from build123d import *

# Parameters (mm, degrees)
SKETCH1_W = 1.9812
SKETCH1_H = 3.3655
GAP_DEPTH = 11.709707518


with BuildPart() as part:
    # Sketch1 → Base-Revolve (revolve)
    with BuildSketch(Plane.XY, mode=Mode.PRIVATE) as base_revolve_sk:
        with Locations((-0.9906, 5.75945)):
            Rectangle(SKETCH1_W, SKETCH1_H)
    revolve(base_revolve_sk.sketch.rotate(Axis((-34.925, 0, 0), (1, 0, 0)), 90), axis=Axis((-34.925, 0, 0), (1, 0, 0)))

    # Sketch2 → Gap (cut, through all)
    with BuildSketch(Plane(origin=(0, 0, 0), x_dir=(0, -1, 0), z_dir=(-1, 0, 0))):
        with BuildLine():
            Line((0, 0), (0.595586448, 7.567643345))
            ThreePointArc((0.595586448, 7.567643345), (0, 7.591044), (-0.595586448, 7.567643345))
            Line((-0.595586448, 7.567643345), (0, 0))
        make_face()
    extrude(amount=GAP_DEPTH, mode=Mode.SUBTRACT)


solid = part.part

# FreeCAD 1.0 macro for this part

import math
import FreeCAD as App
import Part
import Sketcher
Q = App.Units.Quantity


def add_polygon(sketch, points):
    """Adds a closed chain of lines whose ends are joined by coincident constraints."""
    first, n = sketch.GeometryCount, len(points)
    for a, b in zip(points, points[1:] + points[:1]):
        sketch.addGeometry(Part.LineSegment(App.Vector(*a, 0), App.Vector(*b, 0)), False)
    for i in range(n):
        sketch.addConstraint(Sketcher.Constraint("Coincident", first + i, 2, first + (i + 1) % n, 1))

doc = App.newDocument("Part")
body = doc.addObject("PartDesign::Body", "Body")

sketch1 = body.newObject("Sketcher::SketchObject", "Sketch")
sketch1.AttachmentSupport = (doc.getObject("XY_Plane"), [""])
sketch1.MapMode = "FlatFace"
add_polygon(sketch1, [(-2, 7.4), (-2, 4.1), (0, 4.1), (0, 7.4)])
sketch1.addConstraint(Sketcher.Constraint("Vertical", 0))
sketch1.addConstraint(Sketcher.Constraint("Horizontal", 1))
sketch1.addConstraint(Sketcher.Constraint("Vertical", 2))
sketch1.addConstraint(Sketcher.Constraint("Horizontal", 3))
sketch1.addConstraint(Sketcher.Constraint("PointOnObject", 1, 2, -2))
sketch1.addConstraint(Sketcher.Constraint("DistanceX", 1, 1, 1, 2, Q("0.078 in")))
sketch1.addConstraint(Sketcher.Constraint("DistanceY", 0, 2, 0, 1, Q("0.1325 in")))
sketch1.addConstraint(Sketcher.Constraint("DistanceY", -1, 1, 2, 2, Q("0.293 in")))
revolution = body.newObject("PartDesign::Revolution", "Revolution")
revolution.Profile = sketch1
revolution.ReferenceAxis = (sketch1, ["H_Axis"])
revolution.Angle = 360

sketch2 = body.newObject("Sketcher::SketchObject", "Sketch001")
sketch2.AttachmentSupport = (doc.getObject("YZ_Plane"), [""])
sketch2.MapMode = "FlatFace"
sketch2.addGeometry(Part.LineSegment(App.Vector(0, 0, 0), App.Vector(-0.6, 7.6, 0)), False)
sketch2.addGeometry(Part.ArcOfCircle(Part.Circle(App.Vector(0, 0, 0), App.Vector(0, 0, 1), 7.6), math.radians(85.5), math.radians(94.5)), False)
sketch2.addGeometry(Part.LineSegment(App.Vector(0.6, 7.6, 0), App.Vector(0, 0, 0)), False)
sketch2.addConstraint(Sketcher.Constraint("Coincident", 0, 2, 1, 2))
sketch2.addConstraint(Sketcher.Constraint("Coincident", 1, 1, 2, 1))
sketch2.addConstraint(Sketcher.Constraint("Coincident", 2, 2, 0, 1))
sketch2.addConstraint(Sketcher.Constraint("Coincident", 1, 3, -1, 1))
sketch2.addConstraint(Sketcher.Constraint("Coincident", 2, 2, -1, 1))
sketch2.addConstraint(Sketcher.Constraint("Horizontal", 0, 2, 1, 1))
sketch2.addConstraint(Sketcher.Constraint("Angle", 0, Q("94.5 deg")))
sketch2.addConstraint(Sketcher.Constraint("Radius", 1, 7.591044))
pocket1 = body.newObject("PartDesign::Pocket", "Pocket")
pocket1.Profile = sketch2
pocket1.Type = "ThroughAll"

doc.recompute()
